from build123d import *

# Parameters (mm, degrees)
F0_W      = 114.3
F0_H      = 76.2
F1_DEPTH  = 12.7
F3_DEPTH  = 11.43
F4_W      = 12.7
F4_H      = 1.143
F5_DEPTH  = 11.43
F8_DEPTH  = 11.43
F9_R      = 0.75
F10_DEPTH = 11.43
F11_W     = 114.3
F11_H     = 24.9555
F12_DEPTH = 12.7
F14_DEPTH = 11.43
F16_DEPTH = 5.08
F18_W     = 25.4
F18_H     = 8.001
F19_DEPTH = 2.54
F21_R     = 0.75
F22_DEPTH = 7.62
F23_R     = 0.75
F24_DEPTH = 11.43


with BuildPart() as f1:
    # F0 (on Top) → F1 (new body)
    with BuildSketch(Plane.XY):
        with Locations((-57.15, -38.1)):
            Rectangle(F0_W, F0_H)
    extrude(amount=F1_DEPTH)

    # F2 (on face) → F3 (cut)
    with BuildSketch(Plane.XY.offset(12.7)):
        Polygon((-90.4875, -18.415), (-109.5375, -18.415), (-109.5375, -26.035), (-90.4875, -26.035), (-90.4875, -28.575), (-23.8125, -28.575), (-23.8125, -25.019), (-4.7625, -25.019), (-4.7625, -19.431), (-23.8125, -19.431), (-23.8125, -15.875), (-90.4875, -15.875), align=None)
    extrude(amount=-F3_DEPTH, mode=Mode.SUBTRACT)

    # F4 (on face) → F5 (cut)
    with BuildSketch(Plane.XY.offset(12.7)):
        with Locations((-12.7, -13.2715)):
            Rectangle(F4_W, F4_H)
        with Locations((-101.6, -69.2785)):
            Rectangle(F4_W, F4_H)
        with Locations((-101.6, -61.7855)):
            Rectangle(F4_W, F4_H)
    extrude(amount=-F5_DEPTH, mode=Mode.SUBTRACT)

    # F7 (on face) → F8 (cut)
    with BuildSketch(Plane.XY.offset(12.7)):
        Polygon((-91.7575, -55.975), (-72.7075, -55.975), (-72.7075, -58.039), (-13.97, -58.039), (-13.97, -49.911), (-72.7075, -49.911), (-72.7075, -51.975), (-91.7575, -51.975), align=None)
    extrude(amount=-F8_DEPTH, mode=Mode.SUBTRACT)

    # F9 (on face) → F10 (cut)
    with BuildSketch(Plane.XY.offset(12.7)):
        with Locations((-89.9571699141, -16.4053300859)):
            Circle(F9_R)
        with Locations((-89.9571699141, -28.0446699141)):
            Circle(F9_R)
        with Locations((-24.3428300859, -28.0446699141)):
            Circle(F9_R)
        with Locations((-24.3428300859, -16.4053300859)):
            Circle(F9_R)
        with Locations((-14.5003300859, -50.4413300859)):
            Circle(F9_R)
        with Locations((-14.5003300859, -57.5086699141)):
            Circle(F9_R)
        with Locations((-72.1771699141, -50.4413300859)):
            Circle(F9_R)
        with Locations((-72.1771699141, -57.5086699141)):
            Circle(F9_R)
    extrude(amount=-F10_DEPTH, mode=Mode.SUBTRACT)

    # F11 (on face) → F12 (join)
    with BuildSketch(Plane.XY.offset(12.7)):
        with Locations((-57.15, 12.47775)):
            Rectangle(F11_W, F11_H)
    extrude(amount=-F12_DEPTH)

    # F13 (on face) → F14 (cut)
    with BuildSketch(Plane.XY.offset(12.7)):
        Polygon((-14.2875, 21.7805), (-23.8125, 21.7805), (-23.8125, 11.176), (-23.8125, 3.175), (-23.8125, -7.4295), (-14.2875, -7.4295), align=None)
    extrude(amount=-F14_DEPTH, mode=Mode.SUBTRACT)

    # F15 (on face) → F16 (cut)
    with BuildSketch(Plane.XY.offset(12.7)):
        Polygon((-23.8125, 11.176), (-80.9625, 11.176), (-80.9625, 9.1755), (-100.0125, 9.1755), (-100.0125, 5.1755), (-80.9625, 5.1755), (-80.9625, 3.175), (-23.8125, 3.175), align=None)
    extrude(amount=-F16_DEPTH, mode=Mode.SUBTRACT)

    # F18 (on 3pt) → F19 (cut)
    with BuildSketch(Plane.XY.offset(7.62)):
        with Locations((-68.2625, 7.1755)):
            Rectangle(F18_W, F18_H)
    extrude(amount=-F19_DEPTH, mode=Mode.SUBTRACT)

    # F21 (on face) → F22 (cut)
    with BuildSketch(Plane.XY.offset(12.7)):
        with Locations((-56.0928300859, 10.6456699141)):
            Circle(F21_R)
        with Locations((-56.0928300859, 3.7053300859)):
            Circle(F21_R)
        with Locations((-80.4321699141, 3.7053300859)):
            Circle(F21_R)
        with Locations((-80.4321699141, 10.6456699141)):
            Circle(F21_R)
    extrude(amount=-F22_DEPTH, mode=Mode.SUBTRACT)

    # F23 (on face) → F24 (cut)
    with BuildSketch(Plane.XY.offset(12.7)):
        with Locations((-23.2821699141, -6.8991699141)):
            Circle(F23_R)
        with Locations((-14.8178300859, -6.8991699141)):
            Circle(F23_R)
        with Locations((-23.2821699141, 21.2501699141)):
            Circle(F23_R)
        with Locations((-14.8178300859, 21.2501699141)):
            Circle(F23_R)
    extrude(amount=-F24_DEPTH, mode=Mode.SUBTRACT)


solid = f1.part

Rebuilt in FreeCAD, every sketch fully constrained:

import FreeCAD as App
import Part
import Sketcher

V = App.Vector
Q = App.Units.Quantity


def add_polygon(sketch, points):
    """Adds a closed chain of lines whose ends are joined by coincident constraints."""
    first, n = sketch.GeometryCount, len(points)
    for a, b in zip(points, points[1:] + points[:1]):
        sketch.addGeometry(Part.LineSegment(App.Vector(*a, 0), App.Vector(*b, 0)), False)
    for i in range(n):
        sketch.addConstraint(Sketcher.Constraint("Coincident", first + i, 2, first + (i + 1) % n, 1))

doc = App.newDocument("Part")
body = doc.addObject("PartDesign::Body", "Body")

# Sketch on XY plane
sketch1 = body.newObject("Sketcher::SketchObject", "Sketch")
sketch1.AttachmentSupport = (doc.getObject("XY_Plane"), [""])
sketch1.MapMode = "FlatFace"
add_polygon(sketch1, [(-114, 0), (-114, -76), (0, -76), (0, 0)])  # lines 0-3
sketch1.addConstraint(Sketcher.Constraint("Vertical", 0))
sketch1.addConstraint(Sketcher.Constraint("Horizontal", 1))
sketch1.addConstraint(Sketcher.Constraint("Vertical", 2))
sketch1.addConstraint(Sketcher.Constraint("Horizontal", 3))
sketch1.addConstraint(Sketcher.Constraint("Coincident", 2, 2, -1, 1))
sketch1.addConstraint(Sketcher.Constraint("DistanceY", 0, 2, 0, 1, Q("3 in")))
sketch1.addConstraint(Sketcher.Constraint("DistanceX", 1, 1, 1, 2, Q("4.5 in")))
pad1 = body.newObject("PartDesign::Pad", "Pad")
pad1.Profile = sketch1
pad1.Length = Q("0.5 in")

# Sketch on XY plane
sketch2 = body.newObject("Sketcher::SketchObject", "Sketch001")
sketch2.AttachmentSupport = (doc.getObject("XY_Plane"), [""])
sketch2.MapMode = "FlatFace"
sketch2.AttachmentOffset = App.Placement(V(0, 0, 0.5 * 25.4), App.Rotation())
add_polygon(sketch2, [(-90.5, -18.4), (-109.5, -18.4), (-109.5, -26), (-90.5, -26), (-90.5, -28.6), (-23.8, -28.6), (-23.8, -25), (-4.8, -25), (-4.8, -19.4), (-23.8, -19.4), (-23.8, -15.9), (-90.5, -15.9)])  # lines 0-11
sketch2.addConstraint(Sketcher.Constraint("Horizontal", 0))
sketch2.addConstraint(Sketcher.Constraint("Vertical", 1))
sketch2.addConstraint(Sketcher.Constraint("Horizontal", 2))
sketch2.addConstraint(Sketcher.Constraint("Vertical", 3))
sketch2.addConstraint(Sketcher.Constraint("Horizontal", 4))
sketch2.addConstraint(Sketcher.Constraint("Vertical", 5))
sketch2.addConstraint(Sketcher.Constraint("Horizontal", 6))
sketch2.addConstraint(Sketcher.Constraint("Vertical", 7))
sketch2.addConstraint(Sketcher.Constraint("Horizontal", 8))
sketch2.addConstraint(Sketcher.Constraint("Vertical", 9))
sketch2.addConstraint(Sketcher.Constraint("Horizontal", 10))
sketch2.addConstraint(Sketcher.Constraint("Vertical", 11))
sketch2.addConstraint(Sketcher.Constraint("Vertical", 5, 2, 8, 2))
sketch2.addConstraint(Sketcher.Constraint("Vertical", 3, 2, 10, 2))
sketch2.addConstraint(Sketcher.Constraint("Equal", 2, 6))
sketch2.addConstraint(Sketcher.Constraint("Equal", 5, 9))
sketch2.addConstraint(Sketcher.Constraint("Equal", 3, 11))
sketch2.addConstraint(Sketcher.Constraint("DistanceY", 1, 2, 1, 1, Q("0.3 in")))
sketch2.addConstraint(Sketcher.Constraint("DistanceY", 3, 2, 3, 1, Q("0.1 in")))
sketch2.addConstraint(Sketcher.Constraint("DistanceX", 0, 2, 0, 1, Q("0.75 in")))
sketch2.addConstraint(Sketcher.Constraint("DistanceY", 5, 1, 5, 2, Q("0.14 in")))
sketch2.addConstraint(Sketcher.Constraint("DistanceX", 4, 1, 4, 2, Q("2.625 in")))
sketch2.addConstraint(Sketcher.Constraint("DistanceX", 0, 2, -1, 1, Q("4.3125 in")))
sketch2.addConstraint(Sketcher.Constraint("DistanceY", 0, 2, -1, 1, Q("0.725 in")))
pocket1 = body.newObject("PartDesign::Pocket", "Pocket")
pocket1.Profile = sketch2
pocket1.Length = Q("0.45 in")

# Sketch on XY plane
sketch3 = body.newObject("Sketcher::SketchObject", "Sketch002")
sketch3.AttachmentSupport = (doc.getObject("XY_Plane"), [""])
sketch3.MapMode = "FlatFace"
sketch3.AttachmentOffset = App.Placement(V(0, 0, 0.5 * 25.4), App.Rotation())
add_polygon(sketch3, [(-19.1, -12.7), (-19.1, -13.8), (-6.3, -13.8), (-6.3, -12.7)])  # lines 0-3
add_polygon(sketch3, [(-108, -68.7), (-108, -69.8), (-95.2, -69.8), (-95.2, -68.7)])  # lines 4-7
add_polygon(sketch3, [(-108, -61.2), (-108, -62.4), (-95.2, -62.4), (-95.2, -61.2)])  # lines 8-11
sketch3.addConstraint(Sketcher.Constraint("Vertical", 0))
sketch3.addConstraint(Sketcher.Constraint("Horizontal", 1))
sketch3.addConstraint(Sketcher.Constraint("Vertical", 2))
sketch3.addConstraint(Sketcher.Constraint("Horizontal", 3))
sketch3.addConstraint(Sketcher.Constraint("Vertical", 4))
sketch3.addConstraint(Sketcher.Constraint("Horizontal", 5))
sketch3.addConstraint(Sketcher.Constraint("Vertical", 6))
sketch3.addConstraint(Sketcher.Constraint("Horizontal", 7))
sketch3.addConstraint(Sketcher.Constraint("Vertical", 8))
sketch3.addConstraint(Sketcher.Constraint("Horizontal", 9))
sketch3.addConstraint(Sketcher.Constraint("Vertical", 10))
sketch3.addConstraint(Sketcher.Constraint("Horizontal", 11))
sketch3.addConstraint(Sketcher.Constraint("Vertical", 7, 2, 8, 2))
sketch3.addConstraint(Sketcher.Constraint("Vertical", 6, 2, 9, 2))
sketch3.addConstraint(Sketcher.Constraint("Equal", 3, 5))
sketch3.addConstraint(Sketcher.Constraint("Equal", 2, 4))
sketch3.addConstraint(Sketcher.Constraint("Equal", 6, 8))
sketch3.addConstraint(Sketcher.Constraint("DistanceX", 1, 1, 1, 2, Q("0.5 in")))
sketch3.addConstraint(Sketcher.Constraint("DistanceX", 4, 2, 1, 2, Q("4 in")))
sketch3.addConstraint(Sketcher.Constraint("DistanceY", 2, 2, -1, 1, Q("0.5 in")))
sketch3.addConstraint(Sketcher.Constraint("DistanceY", 0, 2, 0, 1, Q("0.045 in")))
sketch3.addConstraint(Sketcher.Constraint("DistanceX", 0, 2, -1, 1, Q("0.75 in")))
sketch3.addConstraint(Sketcher.Constraint("DistanceY", 4, 2, -1, 1, Q("2.75 in")))
sketch3.addConstraint(Sketcher.Constraint("DistanceY", 10, 2, -1, 1, Q("2.41 in")))
pocket2 = body.newObject("PartDesign::Pocket", "Pocket001")
pocket2.Profile = sketch3
pocket2.Length = Q("0.45 in")

# Sketch on XY plane
sketch4 = body.newObject("Sketcher::SketchObject", "Sketch003")
sketch4.AttachmentSupport = (doc.getObject("XY_Plane"), [""])
sketch4.MapMode = "FlatFace"
sketch4.AttachmentOffset = App.Placement(V(0, 0, 0.5 * 25.4), App.Rotation())
add_polygon(sketch4, [(-91.8, -56), (-72.7, -56), (-72.7, -58), (-14, -58), (-14, -49.9), (-72.7, -49.9), (-72.7, -52), (-91.8, -52)])  # lines 0-7
sketch4.addConstraint(Sketcher.Constraint("Horizontal", 0))
sketch4.addConstraint(Sketcher.Constraint("Vertical", 1))
sketch4.addConstraint(Sketcher.Constraint("Horizontal", 2))
sketch4.addConstraint(Sketcher.Constraint("Vertical", 3))
sketch4.addConstraint(Sketcher.Constraint("Horizontal", 4))
sketch4.addConstraint(Sketcher.Constraint("Vertical", 5))
sketch4.addConstraint(Sketcher.Constraint("Horizontal", 6))
sketch4.addConstraint(Sketcher.Constraint("Vertical", 7))
sketch4.addConstraint(Sketcher.Constraint("Vertical", 1, 2, 4, 2))
sketch4.addConstraint(Sketcher.Constraint("Equal", 1, 5))
sketch4.addConstraint(Sketcher.Constraint("DistanceX", 0, 1, 0, 2, Q("0.75 in")))
sketch4.addConstraint(Sketcher.Constraint("DistanceY", 3, 1, 3, 2, Q("0.32 in")))
sketch4.addConstraint(Sketcher.Constraint("DistanceX", 2, 1, 2, 2, Q("2.3125 in")))
sketch4.addConstraint(Sketcher.Constraint("DistanceX", 2, 2, -1, 1, Q("0.55 in")))
sketch4.addConstraint(Sketcher.Constraint("DistanceY", 1, 2, -1, 1, Q("2.285 in")))
sketch4.addConstraint(Sketcher.Constraint("DistanceY", 1, 2, 1, 1, 2.064))
pocket3 = body.newObject("PartDesign::Pocket", "Pocket002")
pocket3.Profile = sketch4
pocket3.Length = Q("0.45 in")

# Sketch on XY plane
sketch5 = body.newObject("Sketcher::SketchObject", "Sketch004")
sketch5.AttachmentSupport = (doc.getObject("XY_Plane"), [""])
sketch5.MapMode = "FlatFace"
sketch5.AttachmentOffset = App.Placement(V(0, 0, 0.5 * 25.4), App.Rotation())
sketch5.addGeometry(Part.Circle(V(-90, -16.4, 0), V(0, 0, 1), 0.8), False)
sketch5.addGeometry(Part.Circle(V(-90, -28, 0), V(0, 0, 1), 0.8), False)
sketch5.addGeometry(Part.Circle(V(-24.3, -28, 0), V(0, 0, 1), 0.8), False)
sketch5.addGeometry(Part.Circle(V(-24.3, -16.4, 0), V(0, 0, 1), 0.8), False)
sketch5.addGeometry(Part.Circle(V(-14.5, -50.4, 0), V(0, 0, 1), 0.8), False)
sketch5.addGeometry(Part.Circle(V(-14.5, -57.5, 0), V(0, 0, 1), 0.8), False)
sketch5.addGeometry(Part.Circle(V(-72.2, -50.4, 0), V(0, 0, 1), 0.8), False)
sketch5.addGeometry(Part.Circle(V(-72.2, -57.5, 0), V(0, 0, 1), 0.8), False)
sketch5.addConstraint(Sketcher.Constraint("Equal", 0, 1))
sketch5.addConstraint(Sketcher.Constraint("Equal", 1, 2))
sketch5.addConstraint(Sketcher.Constraint("Equal", 2, 3))
sketch5.addConstraint(Sketcher.Constraint("Equal", 3, 4))
sketch5.addConstraint(Sketcher.Constraint("Equal", 4, 5))
sketch5.addConstraint(Sketcher.Constraint("Equal", 5, 6))
sketch5.addConstraint(Sketcher.Constraint("Equal", 6, 7))
sketch5.addConstraint(Sketcher.Constraint("Horizontal", 1, 3, 2, 3))
sketch5.addConstraint(Sketcher.Constraint("Horizontal", 0, 3, 3, 3))
sketch5.addConstraint(Sketcher.Constraint("Horizontal", 4, 3, 6, 3))
sketch5.addConstraint(Sketcher.Constraint("Horizontal", 5, 3, 7, 3))
sketch5.addConstraint(Sketcher.Constraint("Vertical", 0, 3, 1, 3))
sketch5.addConstraint(Sketcher.Constraint("Vertical", 2, 3, 3, 3))
sketch5.addConstraint(Sketcher.Constraint("Vertical", 4, 3, 5, 3))
sketch5.addConstraint(Sketcher.Constraint("Vertical", 6, 3, 7, 3))
sketch5.addConstraint(Sketcher.Constraint("DistanceX", 1, 3, 6, 3, Q("0.7 in")))
sketch5.addConstraint(Sketcher.Constraint("Diameter", 0, 1.5))
sketch5.addConstraint(Sketcher.Constraint("DistanceY", 4, 3, 3, 3, Q("1.34 in")))
sketch5.addConstraint(Sketcher.Constraint("DistanceY", 5, 3, 2, 3, Q("1.16 in")))
sketch5.addConstraint(Sketcher.Constraint("DistanceX", 2, 3, 4, 3, Q("0.3875 in")))
sketch5.addConstraint(Sketcher.Constraint("DistanceX", 0, 3, -1, 1, 89.95717))
sketch5.addConstraint(Sketcher.Constraint("DistanceY", 0, 3, -1, 1, 16.40533))
sketch5.addConstraint(Sketcher.Constraint("DistanceY", 1, 3, -1, 1, 28.04467))
sketch5.addConstraint(Sketcher.Constraint("DistanceX", 2, 3, -1, 1, 24.34283))
pocket4 = body.newObject("PartDesign::Pocket", "Pocket003")
pocket4.Profile = sketch5
pocket4.Length = Q("0.45 in")

# Sketch on XY plane
sketch6 = body.newObject("Sketcher::SketchObject", "Sketch005")
sketch6.AttachmentSupport = (doc.getObject("XY_Plane"), [""])
sketch6.MapMode = "FlatFace"
sketch6.AttachmentOffset = App.Placement(V(0, 0, 0.5 * 25.4), App.Rotation())
add_polygon(sketch6, [(-114, 25), (-114, 0), (0, 0), (0, 25)])  # lines 0-3
sketch6.addConstraint(Sketcher.Constraint("Vertical", 0))
sketch6.addConstraint(Sketcher.Constraint("Horizontal", 1))
sketch6.addConstraint(Sketcher.Constraint("Vertical", 2))
sketch6.addConstraint(Sketcher.Constraint("Horizontal", 3))
sketch6.addConstraint(Sketcher.Constraint("Coincident", 1, 2, -1, 1))
sketch6.addConstraint(Sketcher.Constraint("DistanceX", 1, 1, 1, 2, Q("4.5 in")))
sketch6.addConstraint(Sketcher.Constraint("DistanceY", 0, 2, 0, 1, Q("0.9825 in")))
pad2 = body.newObject("PartDesign::Pad", "Pad001")
pad2.Profile = sketch6
pad2.Length = Q("0.5 in")
pad2.Reversed = True

# Sketch on XY plane
sketch7 = body.newObject("Sketcher::SketchObject", "Sketch006")
sketch7.AttachmentSupport = (doc.getObject("XY_Plane"), [""])
sketch7.MapMode = "FlatFace"
sketch7.AttachmentOffset = App.Placement(V(0, 0, 0.5 * 25.4), App.Rotation())
add_polygon(sketch7, [(-14, 22), (-24, 22), (-24, -7), (-14, -7)])  # lines 0-3
sketch7.addConstraint(Sketcher.Constraint("Horizontal", 0))
sketch7.addConstraint(Sketcher.Constraint("Vertical", 1))
sketch7.addConstraint(Sketcher.Constraint("Horizontal", 2))
sketch7.addConstraint(Sketcher.Constraint("Vertical", 3))
sketch7.addConstraint(Sketcher.Constraint("DistanceY", 1, 2, 1, 1, Q("1.15 in")))
sketch7.addConstraint(Sketcher.Constraint("DistanceX", 0, 2, 0, 1, Q("0.375 in")))
sketch7.addConstraint(Sketcher.Constraint("DistanceX", 0, 2, -1, 1, Q("0.9375 in")))
sketch7.addConstraint(Sketcher.Constraint("DistanceY", -1, 1, 0, 2, Q("0.8575 in")))
pocket5 = body.newObject("PartDesign::Pocket", "Pocket004")
pocket5.Profile = sketch7
pocket5.Length = Q("0.45 in")

# Sketch on XY plane
sketch8 = body.newObject("Sketcher::SketchObject", "Sketch007")
sketch8.AttachmentSupport = (doc.getObject("XY_Plane"), [""])
sketch8.MapMode = "FlatFace"
sketch8.AttachmentOffset = App.Placement(V(0, 0, 0.5 * 25.4), App.Rotation())
add_polygon(sketch8, [(-23.8, 11.2), (-81, 11.2), (-81, 9.2), (-100, 9.2), (-100, 5.2), (-81, 5.2), (-81, 3.2), (-23.8, 3.2)])  # lines 0-7
sketch8.addConstraint(Sketcher.Constraint("Horizontal", 0))
sketch8.addConstraint(Sketcher.Constraint("Vertical", 1))
sketch8.addConstraint(Sketcher.Constraint("Horizontal", 2))
sketch8.addConstraint(Sketcher.Constraint("Vertical", 3))
sketch8.addConstraint(Sketcher.Constraint("Horizontal", 4))
sketch8.addConstraint(Sketcher.Constraint("Vertical", 5))
sketch8.addConstraint(Sketcher.Constraint("Horizontal", 6))
sketch8.addConstraint(Sketcher.Constraint("Vertical", 7))
sketch8.addConstraint(Sketcher.Constraint("Vertical", 1, 2, 4, 2))
sketch8.addConstraint(Sketcher.Constraint("Equal", 1, 5))
sketch8.addConstraint(Sketcher.Constraint("DistanceX", 3, 2, 6, 2, Q("3 in")))
sketch8.addConstraint(Sketcher.Constraint("DistanceX", 0, 2, 0, 1, Q("2.25 in")))
sketch8.addConstraint(Sketcher.Constraint("DistanceY", 7, 1, 7, 2, Q("0.315 in")))
sketch8.addConstraint(Sketcher.Constraint("DistanceY", -1, 1, 0, 2, Q("0.44 in")))
sketch8.addConstraint(Sketcher.Constraint("DistanceX", 0, 2, -1, 1, Q("3.1875 in")))
sketch8.addConstraint(Sketcher.Constraint("DistanceY", 1, 2, 1, 1, 2.0005))
pocket6 = body.newObject("PartDesign::Pocket", "Pocket005")
pocket6.Profile = sketch8
pocket6.Length = Q("0.2 in")

# Sketch on XY plane
sketch9 = body.newObject("Sketcher::SketchObject", "Sketch008")
sketch9.AttachmentSupport = (doc.getObject("XY_Plane"), [""])
sketch9.MapMode = "FlatFace"
sketch9.AttachmentOffset = App.Placement(V(0, 0, 0.3 * 25.4), App.Rotation())
add_polygon(sketch9, [(-81, 11), (-81, 3), (-56, 3), (-56, 11)])  # lines 0-3
sketch9.addConstraint(Sketcher.Constraint("Vertical", 0))
sketch9.addConstraint(Sketcher.Constraint("Horizontal", 1))
sketch9.addConstraint(Sketcher.Constraint("Vertical", 2))
sketch9.addConstraint(Sketcher.Constraint("Horizontal", 3))
sketch9.addConstraint(Sketcher.Constraint("DistanceX", 1, 1, 1, 2, Q("1 in")))
sketch9.addConstraint(Sketcher.Constraint("DistanceY", 0, 2, 0, 1, Q("0.315 in")))
sketch9.addConstraint(Sketcher.Constraint("DistanceY", -1, 1, 2, 2, Q("0.44 in")))
sketch9.addConstraint(Sketcher.Constraint("DistanceX", 0, 2, -1, 1, Q("3.1875 in")))
pocket7 = body.newObject("PartDesign::Pocket", "Pocket006")
pocket7.Profile = sketch9
pocket7.Length = Q("0.1 in")

# Sketch on XY plane
sketch10 = body.newObject("Sketcher::SketchObject", "Sketch009")
sketch10.AttachmentSupport = (doc.getObject("XY_Plane"), [""])
sketch10.MapMode = "FlatFace"
sketch10.AttachmentOffset = App.Placement(V(0, 0, 0.5 * 25.4), App.Rotation())
sketch10.addGeometry(Part.Circle(V(-56.1, 10.6, 0), V(0, 0, 1), 0.8), False)
sketch10.addGeometry(Part.Circle(V(-56.1, 3.7, 0), V(0, 0, 1), 0.8), False)
sketch10.addGeometry(Part.Circle(V(-80.4, 3.7, 0), V(0, 0, 1), 0.8), False)
sketch10.addGeometry(Part.Circle(V(-80.4, 10.6, 0), V(0, 0, 1), 0.8), False)
sketch10.addConstraint(Sketcher.Constraint("Equal", 0, 1))
sketch10.addConstraint(Sketcher.Constraint("Equal", 1, 2))
sketch10.addConstraint(Sketcher.Constraint("Equal", 2, 3))
sketch10.addConstraint(Sketcher.Constraint("Horizontal", 1, 3, 2, 3))
sketch10.addConstraint(Sketcher.Constraint("Horizontal", 0, 3, 3, 3))
sketch10.addConstraint(Sketcher.Constraint("Vertical", 0, 3, 1, 3))
sketch10.addConstraint(Sketcher.Constraint("Vertical", 2, 3, 3, 3))
sketch10.addConstraint(Sketcher.Constraint("Diameter", 0, 1.5))
sketch10.addConstraint(Sketcher.Constraint("DistanceX", 0, 3, -1, 1, 56.09283))
sketch10.addConstraint(Sketcher.Constraint("DistanceY", -1, 1, 0, 3, 10.64567))
sketch10.addConstraint(Sketcher.Constraint("DistanceY", -1, 1, 1, 3, 3.70533))
sketch10.addConstraint(Sketcher.Constraint("DistanceX", 2, 3, -1, 1, 80.43217))
pocket8 = body.newObject("PartDesign::Pocket", "Pocket007")
pocket8.Profile = sketch10
pocket8.Length = Q("0.3 in")

# Sketch on XY plane
sketch11 = body.newObject("Sketcher::SketchObject", "Sketch010")
sketch11.AttachmentSupport = (doc.getObject("XY_Plane"), [""])
sketch11.MapMode = "FlatFace"
sketch11.AttachmentOffset = App.Placement(V(0, 0, 0.5 * 25.4), App.Rotation())
sketch11.addGeometry(Part.Circle(V(-23.3, -6.9, 0), V(0, 0, 1), 0.8), False)
sketch11.addGeometry(Part.Circle(V(-14.8, -6.9, 0), V(0, 0, 1), 0.8), False)
sketch11.addGeometry(Part.Circle(V(-23.3, 21.3, 0), V(0, 0, 1), 0.8), False)
sketch11.addGeometry(Part.Circle(V(-14.8, 21.3, 0), V(0, 0, 1), 0.8), False)
sketch11.addConstraint(Sketcher.Constraint("Equal", 0, 1))
sketch11.addConstraint(Sketcher.Constraint("Equal", 1, 2))
sketch11.addConstraint(Sketcher.Constraint("Equal", 2, 3))
sketch11.addConstraint(Sketcher.Constraint("Horizontal", 0, 3, 1, 3))
sketch11.addConstraint(Sketcher.Constraint("Horizontal", 2, 3, 3, 3))
sketch11.addConstraint(Sketcher.Constraint("Vertical", 0, 3, 2, 3))
sketch11.addConstraint(Sketcher.Constraint("Vertical", 1, 3, 3, 3))
sketch11.addConstraint(Sketcher.Constraint("Diameter", 0, 1.5))
sketch11.addConstraint(Sketcher.Constraint("DistanceX", 0, 3, -1, 1, 23.28217))
sketch11.addConstraint(Sketcher.Constraint("DistanceY", 0, 3, -1, 1, 6.89917))
sketch11.addConstraint(Sketcher.Constraint("DistanceX", 1, 3, -1, 1, 14.81783))
sketch11.addConstraint(Sketcher.Constraint("DistanceY", -1, 1, 2, 3, 21.25017))
pocket9 = body.newObject("PartDesign::Pocket", "Pocket008")
pocket9.Profile = sketch11
pocket9.Length = Q("0.45 in")

doc.recompute()
